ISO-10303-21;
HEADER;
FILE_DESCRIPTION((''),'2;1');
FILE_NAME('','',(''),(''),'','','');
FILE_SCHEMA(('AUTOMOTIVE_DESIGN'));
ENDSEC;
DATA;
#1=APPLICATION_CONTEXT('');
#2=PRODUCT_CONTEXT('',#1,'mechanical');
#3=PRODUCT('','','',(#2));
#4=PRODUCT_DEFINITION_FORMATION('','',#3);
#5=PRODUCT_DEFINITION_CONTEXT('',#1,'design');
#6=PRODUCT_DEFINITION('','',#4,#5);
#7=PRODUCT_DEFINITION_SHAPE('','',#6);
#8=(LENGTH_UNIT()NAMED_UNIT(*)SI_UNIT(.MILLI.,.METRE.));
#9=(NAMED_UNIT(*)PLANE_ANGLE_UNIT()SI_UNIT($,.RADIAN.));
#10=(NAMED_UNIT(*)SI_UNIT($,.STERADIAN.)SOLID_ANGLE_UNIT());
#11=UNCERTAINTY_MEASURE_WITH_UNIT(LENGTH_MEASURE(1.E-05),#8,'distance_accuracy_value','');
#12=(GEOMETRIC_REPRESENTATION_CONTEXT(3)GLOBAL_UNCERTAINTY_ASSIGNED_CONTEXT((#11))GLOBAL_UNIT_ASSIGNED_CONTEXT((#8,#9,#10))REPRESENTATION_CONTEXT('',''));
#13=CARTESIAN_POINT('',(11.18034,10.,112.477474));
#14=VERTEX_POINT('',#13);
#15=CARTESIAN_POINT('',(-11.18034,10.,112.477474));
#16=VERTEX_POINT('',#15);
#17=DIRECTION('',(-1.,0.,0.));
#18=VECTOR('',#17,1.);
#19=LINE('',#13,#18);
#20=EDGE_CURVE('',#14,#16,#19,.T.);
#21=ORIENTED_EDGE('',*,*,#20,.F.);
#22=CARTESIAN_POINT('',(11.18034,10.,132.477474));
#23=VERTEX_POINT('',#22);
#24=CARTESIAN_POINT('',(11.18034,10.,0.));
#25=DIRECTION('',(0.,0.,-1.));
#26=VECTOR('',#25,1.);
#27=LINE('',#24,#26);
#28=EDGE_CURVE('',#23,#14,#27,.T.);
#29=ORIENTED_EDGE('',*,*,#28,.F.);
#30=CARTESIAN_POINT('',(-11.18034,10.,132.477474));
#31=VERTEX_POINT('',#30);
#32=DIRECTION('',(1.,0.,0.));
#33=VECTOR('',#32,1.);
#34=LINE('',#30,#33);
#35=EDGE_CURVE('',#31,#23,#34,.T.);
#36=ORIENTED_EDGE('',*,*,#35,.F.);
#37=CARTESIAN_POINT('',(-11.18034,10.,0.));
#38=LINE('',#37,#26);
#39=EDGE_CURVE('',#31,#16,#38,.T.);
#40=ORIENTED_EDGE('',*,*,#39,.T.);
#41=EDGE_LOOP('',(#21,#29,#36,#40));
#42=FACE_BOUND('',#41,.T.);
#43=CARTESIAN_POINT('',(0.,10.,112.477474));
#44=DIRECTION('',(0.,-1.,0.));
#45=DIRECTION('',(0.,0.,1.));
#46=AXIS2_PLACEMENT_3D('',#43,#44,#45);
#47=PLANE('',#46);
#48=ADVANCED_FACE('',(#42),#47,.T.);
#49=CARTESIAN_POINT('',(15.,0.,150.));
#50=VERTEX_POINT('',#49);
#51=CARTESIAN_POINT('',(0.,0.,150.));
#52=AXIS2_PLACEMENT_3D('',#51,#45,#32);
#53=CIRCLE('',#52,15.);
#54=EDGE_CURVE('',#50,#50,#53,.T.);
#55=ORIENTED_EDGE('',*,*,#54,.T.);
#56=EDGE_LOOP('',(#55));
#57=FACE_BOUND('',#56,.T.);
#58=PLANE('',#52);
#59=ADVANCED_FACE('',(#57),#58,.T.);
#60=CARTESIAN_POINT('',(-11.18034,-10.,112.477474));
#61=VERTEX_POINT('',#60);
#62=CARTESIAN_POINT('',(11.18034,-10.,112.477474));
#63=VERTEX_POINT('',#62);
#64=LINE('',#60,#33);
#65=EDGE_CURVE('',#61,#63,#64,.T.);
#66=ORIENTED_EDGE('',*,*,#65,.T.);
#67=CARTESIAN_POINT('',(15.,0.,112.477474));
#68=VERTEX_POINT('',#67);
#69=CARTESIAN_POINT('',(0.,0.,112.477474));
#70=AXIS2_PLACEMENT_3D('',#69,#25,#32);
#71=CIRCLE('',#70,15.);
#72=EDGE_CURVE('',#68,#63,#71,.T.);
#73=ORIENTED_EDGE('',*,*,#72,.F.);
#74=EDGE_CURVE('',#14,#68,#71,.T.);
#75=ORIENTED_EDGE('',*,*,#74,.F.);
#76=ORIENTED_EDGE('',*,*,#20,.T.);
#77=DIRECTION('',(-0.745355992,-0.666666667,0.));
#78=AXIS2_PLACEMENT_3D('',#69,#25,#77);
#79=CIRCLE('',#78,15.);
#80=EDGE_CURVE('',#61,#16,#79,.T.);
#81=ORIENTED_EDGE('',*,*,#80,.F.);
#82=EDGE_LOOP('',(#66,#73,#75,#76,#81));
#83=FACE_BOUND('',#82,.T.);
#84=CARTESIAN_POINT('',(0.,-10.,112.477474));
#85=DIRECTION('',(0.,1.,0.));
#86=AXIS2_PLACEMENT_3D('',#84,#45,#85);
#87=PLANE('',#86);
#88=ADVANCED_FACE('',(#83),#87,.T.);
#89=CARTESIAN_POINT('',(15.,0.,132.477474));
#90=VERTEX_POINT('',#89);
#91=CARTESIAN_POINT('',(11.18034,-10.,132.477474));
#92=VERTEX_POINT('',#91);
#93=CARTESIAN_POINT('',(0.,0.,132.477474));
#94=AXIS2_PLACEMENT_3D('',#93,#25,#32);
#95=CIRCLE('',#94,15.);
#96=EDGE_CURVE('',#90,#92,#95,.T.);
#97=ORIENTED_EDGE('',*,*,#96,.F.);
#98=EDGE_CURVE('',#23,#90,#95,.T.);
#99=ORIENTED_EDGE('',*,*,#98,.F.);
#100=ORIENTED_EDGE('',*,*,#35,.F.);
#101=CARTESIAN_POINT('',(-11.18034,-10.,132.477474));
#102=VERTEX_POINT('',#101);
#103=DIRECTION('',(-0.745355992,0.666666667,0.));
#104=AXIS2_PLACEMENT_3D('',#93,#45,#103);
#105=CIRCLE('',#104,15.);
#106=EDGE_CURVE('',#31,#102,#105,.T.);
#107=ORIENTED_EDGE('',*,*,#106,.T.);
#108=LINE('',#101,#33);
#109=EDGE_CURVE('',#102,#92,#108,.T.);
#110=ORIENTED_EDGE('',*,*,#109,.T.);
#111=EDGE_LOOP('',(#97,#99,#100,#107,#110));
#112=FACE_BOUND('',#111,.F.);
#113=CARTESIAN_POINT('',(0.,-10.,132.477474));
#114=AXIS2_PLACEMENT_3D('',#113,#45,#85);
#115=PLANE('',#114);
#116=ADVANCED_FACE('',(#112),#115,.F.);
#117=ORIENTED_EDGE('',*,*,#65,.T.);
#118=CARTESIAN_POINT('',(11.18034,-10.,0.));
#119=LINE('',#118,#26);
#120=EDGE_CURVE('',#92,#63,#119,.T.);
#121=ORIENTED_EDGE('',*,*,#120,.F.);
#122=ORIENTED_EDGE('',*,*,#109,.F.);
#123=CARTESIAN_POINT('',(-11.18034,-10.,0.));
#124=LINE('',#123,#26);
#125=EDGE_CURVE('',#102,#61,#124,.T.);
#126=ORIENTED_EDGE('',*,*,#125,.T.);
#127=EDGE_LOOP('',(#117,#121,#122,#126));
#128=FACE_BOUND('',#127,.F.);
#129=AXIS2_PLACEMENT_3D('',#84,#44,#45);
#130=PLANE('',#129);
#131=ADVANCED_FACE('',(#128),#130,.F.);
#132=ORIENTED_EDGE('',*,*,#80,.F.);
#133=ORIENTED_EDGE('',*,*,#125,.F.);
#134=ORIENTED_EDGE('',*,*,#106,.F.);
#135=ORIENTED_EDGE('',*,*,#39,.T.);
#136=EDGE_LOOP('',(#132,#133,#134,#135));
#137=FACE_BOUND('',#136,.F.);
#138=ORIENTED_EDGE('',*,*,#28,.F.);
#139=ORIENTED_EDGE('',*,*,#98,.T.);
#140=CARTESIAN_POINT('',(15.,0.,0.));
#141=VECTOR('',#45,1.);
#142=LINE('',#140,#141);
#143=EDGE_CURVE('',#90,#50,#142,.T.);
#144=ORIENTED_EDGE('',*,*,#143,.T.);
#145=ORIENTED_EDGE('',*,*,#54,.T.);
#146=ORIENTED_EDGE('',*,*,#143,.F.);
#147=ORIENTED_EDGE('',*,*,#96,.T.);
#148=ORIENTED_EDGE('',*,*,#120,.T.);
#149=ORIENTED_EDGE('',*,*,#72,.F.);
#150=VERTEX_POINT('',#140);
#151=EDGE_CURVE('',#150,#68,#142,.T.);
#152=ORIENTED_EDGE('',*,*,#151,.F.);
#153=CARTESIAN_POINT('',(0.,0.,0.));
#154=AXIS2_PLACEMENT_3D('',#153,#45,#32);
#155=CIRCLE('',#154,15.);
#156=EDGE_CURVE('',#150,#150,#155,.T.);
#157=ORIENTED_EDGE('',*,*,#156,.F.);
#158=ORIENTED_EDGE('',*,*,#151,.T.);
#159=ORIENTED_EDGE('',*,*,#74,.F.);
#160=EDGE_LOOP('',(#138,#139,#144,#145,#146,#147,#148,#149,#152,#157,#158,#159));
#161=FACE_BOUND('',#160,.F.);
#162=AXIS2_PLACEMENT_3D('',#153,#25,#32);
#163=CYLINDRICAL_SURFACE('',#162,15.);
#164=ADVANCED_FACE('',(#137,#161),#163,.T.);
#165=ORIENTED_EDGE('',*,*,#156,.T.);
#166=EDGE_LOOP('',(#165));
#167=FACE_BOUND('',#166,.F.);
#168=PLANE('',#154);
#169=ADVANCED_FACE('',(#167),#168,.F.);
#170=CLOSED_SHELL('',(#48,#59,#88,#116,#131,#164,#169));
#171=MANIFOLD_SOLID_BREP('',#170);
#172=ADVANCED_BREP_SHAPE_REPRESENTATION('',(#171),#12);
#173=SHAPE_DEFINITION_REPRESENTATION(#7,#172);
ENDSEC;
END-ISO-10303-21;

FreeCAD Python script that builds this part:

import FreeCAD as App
import Part
import Sketcher
from FreeCAD import Vector


def add_polygon(sketch, points):
    """Adds a closed chain of lines whose ends are joined by coincident constraints."""
    first, n = sketch.GeometryCount, len(points)
    for a, b in zip(points, points[1:] + points[:1]):
        sketch.addGeometry(Part.LineSegment(App.Vector(*a, 0), App.Vector(*b, 0)), False)
    for i in range(n):
        sketch.addConstraint(Sketcher.Constraint("Coincident", first + i, 2, first + (i + 1) % n, 1))

doc = App.newDocument("Part")
body = doc.addObject("PartDesign::Body", "Body")

sketch1 = body.newObject("Sketcher::SketchObject", "Sketch")
sketch1.AttachmentSupport = (doc.getObject("XY_Plane"), [""])
sketch1.MapMode = "FlatFace"
sketch1.addGeometry(Part.Circle(Vector(0, 0, 0), Vector(0, 0, 1), 15), False)
sketch1.addConstraint(Sketcher.Constraint("Coincident", 0, 3, -1, 1))
sketch1.addConstraint(Sketcher.Constraint("Diameter", 0, 30.0))
pad1 = body.newObject("PartDesign::Pad", "Pad")
pad1.Profile = sketch1
pad1.Length = 150

sketch2 = body.newObject("Sketcher::SketchObject", "Sketch001")
sketch2.AttachmentSupport = (doc.getObject("YZ_Plane"), [""])
sketch2.MapMode = "FlatFace"
add_polygon(sketch2, [(-10, 132), (-10, 112), (10, 112), (10, 132)])
sketch2.addConstraint(Sketcher.Constraint("Vertical", 0))
sketch2.addConstraint(Sketcher.Constraint("Horizontal", 1))
sketch2.addConstraint(Sketcher.Constraint("Vertical", 2))
sketch2.addConstraint(Sketcher.Constraint("Horizontal", 3))
sketch2.addConstraint(Sketcher.Constraint("Equal", 3, 0))
sketch2.addConstraint(Sketcher.Constraint("DistanceX", 1, 1, 1, 2, 20.0))
sketch2.addConstraint(Sketcher.Constraint("DistanceX", 0, 2, -1, 1, 10.0))
sketch2.addConstraint(Sketcher.Constraint("DistanceY", -1, 1, 0, 2, 112.477474))
pocket1 = body.newObject("PartDesign::Pocket", "Pocket")
pocket1.Profile = sketch2
pocket1.Type = "ThroughAll"
pocket1.Midplane = True

doc.recompute()
